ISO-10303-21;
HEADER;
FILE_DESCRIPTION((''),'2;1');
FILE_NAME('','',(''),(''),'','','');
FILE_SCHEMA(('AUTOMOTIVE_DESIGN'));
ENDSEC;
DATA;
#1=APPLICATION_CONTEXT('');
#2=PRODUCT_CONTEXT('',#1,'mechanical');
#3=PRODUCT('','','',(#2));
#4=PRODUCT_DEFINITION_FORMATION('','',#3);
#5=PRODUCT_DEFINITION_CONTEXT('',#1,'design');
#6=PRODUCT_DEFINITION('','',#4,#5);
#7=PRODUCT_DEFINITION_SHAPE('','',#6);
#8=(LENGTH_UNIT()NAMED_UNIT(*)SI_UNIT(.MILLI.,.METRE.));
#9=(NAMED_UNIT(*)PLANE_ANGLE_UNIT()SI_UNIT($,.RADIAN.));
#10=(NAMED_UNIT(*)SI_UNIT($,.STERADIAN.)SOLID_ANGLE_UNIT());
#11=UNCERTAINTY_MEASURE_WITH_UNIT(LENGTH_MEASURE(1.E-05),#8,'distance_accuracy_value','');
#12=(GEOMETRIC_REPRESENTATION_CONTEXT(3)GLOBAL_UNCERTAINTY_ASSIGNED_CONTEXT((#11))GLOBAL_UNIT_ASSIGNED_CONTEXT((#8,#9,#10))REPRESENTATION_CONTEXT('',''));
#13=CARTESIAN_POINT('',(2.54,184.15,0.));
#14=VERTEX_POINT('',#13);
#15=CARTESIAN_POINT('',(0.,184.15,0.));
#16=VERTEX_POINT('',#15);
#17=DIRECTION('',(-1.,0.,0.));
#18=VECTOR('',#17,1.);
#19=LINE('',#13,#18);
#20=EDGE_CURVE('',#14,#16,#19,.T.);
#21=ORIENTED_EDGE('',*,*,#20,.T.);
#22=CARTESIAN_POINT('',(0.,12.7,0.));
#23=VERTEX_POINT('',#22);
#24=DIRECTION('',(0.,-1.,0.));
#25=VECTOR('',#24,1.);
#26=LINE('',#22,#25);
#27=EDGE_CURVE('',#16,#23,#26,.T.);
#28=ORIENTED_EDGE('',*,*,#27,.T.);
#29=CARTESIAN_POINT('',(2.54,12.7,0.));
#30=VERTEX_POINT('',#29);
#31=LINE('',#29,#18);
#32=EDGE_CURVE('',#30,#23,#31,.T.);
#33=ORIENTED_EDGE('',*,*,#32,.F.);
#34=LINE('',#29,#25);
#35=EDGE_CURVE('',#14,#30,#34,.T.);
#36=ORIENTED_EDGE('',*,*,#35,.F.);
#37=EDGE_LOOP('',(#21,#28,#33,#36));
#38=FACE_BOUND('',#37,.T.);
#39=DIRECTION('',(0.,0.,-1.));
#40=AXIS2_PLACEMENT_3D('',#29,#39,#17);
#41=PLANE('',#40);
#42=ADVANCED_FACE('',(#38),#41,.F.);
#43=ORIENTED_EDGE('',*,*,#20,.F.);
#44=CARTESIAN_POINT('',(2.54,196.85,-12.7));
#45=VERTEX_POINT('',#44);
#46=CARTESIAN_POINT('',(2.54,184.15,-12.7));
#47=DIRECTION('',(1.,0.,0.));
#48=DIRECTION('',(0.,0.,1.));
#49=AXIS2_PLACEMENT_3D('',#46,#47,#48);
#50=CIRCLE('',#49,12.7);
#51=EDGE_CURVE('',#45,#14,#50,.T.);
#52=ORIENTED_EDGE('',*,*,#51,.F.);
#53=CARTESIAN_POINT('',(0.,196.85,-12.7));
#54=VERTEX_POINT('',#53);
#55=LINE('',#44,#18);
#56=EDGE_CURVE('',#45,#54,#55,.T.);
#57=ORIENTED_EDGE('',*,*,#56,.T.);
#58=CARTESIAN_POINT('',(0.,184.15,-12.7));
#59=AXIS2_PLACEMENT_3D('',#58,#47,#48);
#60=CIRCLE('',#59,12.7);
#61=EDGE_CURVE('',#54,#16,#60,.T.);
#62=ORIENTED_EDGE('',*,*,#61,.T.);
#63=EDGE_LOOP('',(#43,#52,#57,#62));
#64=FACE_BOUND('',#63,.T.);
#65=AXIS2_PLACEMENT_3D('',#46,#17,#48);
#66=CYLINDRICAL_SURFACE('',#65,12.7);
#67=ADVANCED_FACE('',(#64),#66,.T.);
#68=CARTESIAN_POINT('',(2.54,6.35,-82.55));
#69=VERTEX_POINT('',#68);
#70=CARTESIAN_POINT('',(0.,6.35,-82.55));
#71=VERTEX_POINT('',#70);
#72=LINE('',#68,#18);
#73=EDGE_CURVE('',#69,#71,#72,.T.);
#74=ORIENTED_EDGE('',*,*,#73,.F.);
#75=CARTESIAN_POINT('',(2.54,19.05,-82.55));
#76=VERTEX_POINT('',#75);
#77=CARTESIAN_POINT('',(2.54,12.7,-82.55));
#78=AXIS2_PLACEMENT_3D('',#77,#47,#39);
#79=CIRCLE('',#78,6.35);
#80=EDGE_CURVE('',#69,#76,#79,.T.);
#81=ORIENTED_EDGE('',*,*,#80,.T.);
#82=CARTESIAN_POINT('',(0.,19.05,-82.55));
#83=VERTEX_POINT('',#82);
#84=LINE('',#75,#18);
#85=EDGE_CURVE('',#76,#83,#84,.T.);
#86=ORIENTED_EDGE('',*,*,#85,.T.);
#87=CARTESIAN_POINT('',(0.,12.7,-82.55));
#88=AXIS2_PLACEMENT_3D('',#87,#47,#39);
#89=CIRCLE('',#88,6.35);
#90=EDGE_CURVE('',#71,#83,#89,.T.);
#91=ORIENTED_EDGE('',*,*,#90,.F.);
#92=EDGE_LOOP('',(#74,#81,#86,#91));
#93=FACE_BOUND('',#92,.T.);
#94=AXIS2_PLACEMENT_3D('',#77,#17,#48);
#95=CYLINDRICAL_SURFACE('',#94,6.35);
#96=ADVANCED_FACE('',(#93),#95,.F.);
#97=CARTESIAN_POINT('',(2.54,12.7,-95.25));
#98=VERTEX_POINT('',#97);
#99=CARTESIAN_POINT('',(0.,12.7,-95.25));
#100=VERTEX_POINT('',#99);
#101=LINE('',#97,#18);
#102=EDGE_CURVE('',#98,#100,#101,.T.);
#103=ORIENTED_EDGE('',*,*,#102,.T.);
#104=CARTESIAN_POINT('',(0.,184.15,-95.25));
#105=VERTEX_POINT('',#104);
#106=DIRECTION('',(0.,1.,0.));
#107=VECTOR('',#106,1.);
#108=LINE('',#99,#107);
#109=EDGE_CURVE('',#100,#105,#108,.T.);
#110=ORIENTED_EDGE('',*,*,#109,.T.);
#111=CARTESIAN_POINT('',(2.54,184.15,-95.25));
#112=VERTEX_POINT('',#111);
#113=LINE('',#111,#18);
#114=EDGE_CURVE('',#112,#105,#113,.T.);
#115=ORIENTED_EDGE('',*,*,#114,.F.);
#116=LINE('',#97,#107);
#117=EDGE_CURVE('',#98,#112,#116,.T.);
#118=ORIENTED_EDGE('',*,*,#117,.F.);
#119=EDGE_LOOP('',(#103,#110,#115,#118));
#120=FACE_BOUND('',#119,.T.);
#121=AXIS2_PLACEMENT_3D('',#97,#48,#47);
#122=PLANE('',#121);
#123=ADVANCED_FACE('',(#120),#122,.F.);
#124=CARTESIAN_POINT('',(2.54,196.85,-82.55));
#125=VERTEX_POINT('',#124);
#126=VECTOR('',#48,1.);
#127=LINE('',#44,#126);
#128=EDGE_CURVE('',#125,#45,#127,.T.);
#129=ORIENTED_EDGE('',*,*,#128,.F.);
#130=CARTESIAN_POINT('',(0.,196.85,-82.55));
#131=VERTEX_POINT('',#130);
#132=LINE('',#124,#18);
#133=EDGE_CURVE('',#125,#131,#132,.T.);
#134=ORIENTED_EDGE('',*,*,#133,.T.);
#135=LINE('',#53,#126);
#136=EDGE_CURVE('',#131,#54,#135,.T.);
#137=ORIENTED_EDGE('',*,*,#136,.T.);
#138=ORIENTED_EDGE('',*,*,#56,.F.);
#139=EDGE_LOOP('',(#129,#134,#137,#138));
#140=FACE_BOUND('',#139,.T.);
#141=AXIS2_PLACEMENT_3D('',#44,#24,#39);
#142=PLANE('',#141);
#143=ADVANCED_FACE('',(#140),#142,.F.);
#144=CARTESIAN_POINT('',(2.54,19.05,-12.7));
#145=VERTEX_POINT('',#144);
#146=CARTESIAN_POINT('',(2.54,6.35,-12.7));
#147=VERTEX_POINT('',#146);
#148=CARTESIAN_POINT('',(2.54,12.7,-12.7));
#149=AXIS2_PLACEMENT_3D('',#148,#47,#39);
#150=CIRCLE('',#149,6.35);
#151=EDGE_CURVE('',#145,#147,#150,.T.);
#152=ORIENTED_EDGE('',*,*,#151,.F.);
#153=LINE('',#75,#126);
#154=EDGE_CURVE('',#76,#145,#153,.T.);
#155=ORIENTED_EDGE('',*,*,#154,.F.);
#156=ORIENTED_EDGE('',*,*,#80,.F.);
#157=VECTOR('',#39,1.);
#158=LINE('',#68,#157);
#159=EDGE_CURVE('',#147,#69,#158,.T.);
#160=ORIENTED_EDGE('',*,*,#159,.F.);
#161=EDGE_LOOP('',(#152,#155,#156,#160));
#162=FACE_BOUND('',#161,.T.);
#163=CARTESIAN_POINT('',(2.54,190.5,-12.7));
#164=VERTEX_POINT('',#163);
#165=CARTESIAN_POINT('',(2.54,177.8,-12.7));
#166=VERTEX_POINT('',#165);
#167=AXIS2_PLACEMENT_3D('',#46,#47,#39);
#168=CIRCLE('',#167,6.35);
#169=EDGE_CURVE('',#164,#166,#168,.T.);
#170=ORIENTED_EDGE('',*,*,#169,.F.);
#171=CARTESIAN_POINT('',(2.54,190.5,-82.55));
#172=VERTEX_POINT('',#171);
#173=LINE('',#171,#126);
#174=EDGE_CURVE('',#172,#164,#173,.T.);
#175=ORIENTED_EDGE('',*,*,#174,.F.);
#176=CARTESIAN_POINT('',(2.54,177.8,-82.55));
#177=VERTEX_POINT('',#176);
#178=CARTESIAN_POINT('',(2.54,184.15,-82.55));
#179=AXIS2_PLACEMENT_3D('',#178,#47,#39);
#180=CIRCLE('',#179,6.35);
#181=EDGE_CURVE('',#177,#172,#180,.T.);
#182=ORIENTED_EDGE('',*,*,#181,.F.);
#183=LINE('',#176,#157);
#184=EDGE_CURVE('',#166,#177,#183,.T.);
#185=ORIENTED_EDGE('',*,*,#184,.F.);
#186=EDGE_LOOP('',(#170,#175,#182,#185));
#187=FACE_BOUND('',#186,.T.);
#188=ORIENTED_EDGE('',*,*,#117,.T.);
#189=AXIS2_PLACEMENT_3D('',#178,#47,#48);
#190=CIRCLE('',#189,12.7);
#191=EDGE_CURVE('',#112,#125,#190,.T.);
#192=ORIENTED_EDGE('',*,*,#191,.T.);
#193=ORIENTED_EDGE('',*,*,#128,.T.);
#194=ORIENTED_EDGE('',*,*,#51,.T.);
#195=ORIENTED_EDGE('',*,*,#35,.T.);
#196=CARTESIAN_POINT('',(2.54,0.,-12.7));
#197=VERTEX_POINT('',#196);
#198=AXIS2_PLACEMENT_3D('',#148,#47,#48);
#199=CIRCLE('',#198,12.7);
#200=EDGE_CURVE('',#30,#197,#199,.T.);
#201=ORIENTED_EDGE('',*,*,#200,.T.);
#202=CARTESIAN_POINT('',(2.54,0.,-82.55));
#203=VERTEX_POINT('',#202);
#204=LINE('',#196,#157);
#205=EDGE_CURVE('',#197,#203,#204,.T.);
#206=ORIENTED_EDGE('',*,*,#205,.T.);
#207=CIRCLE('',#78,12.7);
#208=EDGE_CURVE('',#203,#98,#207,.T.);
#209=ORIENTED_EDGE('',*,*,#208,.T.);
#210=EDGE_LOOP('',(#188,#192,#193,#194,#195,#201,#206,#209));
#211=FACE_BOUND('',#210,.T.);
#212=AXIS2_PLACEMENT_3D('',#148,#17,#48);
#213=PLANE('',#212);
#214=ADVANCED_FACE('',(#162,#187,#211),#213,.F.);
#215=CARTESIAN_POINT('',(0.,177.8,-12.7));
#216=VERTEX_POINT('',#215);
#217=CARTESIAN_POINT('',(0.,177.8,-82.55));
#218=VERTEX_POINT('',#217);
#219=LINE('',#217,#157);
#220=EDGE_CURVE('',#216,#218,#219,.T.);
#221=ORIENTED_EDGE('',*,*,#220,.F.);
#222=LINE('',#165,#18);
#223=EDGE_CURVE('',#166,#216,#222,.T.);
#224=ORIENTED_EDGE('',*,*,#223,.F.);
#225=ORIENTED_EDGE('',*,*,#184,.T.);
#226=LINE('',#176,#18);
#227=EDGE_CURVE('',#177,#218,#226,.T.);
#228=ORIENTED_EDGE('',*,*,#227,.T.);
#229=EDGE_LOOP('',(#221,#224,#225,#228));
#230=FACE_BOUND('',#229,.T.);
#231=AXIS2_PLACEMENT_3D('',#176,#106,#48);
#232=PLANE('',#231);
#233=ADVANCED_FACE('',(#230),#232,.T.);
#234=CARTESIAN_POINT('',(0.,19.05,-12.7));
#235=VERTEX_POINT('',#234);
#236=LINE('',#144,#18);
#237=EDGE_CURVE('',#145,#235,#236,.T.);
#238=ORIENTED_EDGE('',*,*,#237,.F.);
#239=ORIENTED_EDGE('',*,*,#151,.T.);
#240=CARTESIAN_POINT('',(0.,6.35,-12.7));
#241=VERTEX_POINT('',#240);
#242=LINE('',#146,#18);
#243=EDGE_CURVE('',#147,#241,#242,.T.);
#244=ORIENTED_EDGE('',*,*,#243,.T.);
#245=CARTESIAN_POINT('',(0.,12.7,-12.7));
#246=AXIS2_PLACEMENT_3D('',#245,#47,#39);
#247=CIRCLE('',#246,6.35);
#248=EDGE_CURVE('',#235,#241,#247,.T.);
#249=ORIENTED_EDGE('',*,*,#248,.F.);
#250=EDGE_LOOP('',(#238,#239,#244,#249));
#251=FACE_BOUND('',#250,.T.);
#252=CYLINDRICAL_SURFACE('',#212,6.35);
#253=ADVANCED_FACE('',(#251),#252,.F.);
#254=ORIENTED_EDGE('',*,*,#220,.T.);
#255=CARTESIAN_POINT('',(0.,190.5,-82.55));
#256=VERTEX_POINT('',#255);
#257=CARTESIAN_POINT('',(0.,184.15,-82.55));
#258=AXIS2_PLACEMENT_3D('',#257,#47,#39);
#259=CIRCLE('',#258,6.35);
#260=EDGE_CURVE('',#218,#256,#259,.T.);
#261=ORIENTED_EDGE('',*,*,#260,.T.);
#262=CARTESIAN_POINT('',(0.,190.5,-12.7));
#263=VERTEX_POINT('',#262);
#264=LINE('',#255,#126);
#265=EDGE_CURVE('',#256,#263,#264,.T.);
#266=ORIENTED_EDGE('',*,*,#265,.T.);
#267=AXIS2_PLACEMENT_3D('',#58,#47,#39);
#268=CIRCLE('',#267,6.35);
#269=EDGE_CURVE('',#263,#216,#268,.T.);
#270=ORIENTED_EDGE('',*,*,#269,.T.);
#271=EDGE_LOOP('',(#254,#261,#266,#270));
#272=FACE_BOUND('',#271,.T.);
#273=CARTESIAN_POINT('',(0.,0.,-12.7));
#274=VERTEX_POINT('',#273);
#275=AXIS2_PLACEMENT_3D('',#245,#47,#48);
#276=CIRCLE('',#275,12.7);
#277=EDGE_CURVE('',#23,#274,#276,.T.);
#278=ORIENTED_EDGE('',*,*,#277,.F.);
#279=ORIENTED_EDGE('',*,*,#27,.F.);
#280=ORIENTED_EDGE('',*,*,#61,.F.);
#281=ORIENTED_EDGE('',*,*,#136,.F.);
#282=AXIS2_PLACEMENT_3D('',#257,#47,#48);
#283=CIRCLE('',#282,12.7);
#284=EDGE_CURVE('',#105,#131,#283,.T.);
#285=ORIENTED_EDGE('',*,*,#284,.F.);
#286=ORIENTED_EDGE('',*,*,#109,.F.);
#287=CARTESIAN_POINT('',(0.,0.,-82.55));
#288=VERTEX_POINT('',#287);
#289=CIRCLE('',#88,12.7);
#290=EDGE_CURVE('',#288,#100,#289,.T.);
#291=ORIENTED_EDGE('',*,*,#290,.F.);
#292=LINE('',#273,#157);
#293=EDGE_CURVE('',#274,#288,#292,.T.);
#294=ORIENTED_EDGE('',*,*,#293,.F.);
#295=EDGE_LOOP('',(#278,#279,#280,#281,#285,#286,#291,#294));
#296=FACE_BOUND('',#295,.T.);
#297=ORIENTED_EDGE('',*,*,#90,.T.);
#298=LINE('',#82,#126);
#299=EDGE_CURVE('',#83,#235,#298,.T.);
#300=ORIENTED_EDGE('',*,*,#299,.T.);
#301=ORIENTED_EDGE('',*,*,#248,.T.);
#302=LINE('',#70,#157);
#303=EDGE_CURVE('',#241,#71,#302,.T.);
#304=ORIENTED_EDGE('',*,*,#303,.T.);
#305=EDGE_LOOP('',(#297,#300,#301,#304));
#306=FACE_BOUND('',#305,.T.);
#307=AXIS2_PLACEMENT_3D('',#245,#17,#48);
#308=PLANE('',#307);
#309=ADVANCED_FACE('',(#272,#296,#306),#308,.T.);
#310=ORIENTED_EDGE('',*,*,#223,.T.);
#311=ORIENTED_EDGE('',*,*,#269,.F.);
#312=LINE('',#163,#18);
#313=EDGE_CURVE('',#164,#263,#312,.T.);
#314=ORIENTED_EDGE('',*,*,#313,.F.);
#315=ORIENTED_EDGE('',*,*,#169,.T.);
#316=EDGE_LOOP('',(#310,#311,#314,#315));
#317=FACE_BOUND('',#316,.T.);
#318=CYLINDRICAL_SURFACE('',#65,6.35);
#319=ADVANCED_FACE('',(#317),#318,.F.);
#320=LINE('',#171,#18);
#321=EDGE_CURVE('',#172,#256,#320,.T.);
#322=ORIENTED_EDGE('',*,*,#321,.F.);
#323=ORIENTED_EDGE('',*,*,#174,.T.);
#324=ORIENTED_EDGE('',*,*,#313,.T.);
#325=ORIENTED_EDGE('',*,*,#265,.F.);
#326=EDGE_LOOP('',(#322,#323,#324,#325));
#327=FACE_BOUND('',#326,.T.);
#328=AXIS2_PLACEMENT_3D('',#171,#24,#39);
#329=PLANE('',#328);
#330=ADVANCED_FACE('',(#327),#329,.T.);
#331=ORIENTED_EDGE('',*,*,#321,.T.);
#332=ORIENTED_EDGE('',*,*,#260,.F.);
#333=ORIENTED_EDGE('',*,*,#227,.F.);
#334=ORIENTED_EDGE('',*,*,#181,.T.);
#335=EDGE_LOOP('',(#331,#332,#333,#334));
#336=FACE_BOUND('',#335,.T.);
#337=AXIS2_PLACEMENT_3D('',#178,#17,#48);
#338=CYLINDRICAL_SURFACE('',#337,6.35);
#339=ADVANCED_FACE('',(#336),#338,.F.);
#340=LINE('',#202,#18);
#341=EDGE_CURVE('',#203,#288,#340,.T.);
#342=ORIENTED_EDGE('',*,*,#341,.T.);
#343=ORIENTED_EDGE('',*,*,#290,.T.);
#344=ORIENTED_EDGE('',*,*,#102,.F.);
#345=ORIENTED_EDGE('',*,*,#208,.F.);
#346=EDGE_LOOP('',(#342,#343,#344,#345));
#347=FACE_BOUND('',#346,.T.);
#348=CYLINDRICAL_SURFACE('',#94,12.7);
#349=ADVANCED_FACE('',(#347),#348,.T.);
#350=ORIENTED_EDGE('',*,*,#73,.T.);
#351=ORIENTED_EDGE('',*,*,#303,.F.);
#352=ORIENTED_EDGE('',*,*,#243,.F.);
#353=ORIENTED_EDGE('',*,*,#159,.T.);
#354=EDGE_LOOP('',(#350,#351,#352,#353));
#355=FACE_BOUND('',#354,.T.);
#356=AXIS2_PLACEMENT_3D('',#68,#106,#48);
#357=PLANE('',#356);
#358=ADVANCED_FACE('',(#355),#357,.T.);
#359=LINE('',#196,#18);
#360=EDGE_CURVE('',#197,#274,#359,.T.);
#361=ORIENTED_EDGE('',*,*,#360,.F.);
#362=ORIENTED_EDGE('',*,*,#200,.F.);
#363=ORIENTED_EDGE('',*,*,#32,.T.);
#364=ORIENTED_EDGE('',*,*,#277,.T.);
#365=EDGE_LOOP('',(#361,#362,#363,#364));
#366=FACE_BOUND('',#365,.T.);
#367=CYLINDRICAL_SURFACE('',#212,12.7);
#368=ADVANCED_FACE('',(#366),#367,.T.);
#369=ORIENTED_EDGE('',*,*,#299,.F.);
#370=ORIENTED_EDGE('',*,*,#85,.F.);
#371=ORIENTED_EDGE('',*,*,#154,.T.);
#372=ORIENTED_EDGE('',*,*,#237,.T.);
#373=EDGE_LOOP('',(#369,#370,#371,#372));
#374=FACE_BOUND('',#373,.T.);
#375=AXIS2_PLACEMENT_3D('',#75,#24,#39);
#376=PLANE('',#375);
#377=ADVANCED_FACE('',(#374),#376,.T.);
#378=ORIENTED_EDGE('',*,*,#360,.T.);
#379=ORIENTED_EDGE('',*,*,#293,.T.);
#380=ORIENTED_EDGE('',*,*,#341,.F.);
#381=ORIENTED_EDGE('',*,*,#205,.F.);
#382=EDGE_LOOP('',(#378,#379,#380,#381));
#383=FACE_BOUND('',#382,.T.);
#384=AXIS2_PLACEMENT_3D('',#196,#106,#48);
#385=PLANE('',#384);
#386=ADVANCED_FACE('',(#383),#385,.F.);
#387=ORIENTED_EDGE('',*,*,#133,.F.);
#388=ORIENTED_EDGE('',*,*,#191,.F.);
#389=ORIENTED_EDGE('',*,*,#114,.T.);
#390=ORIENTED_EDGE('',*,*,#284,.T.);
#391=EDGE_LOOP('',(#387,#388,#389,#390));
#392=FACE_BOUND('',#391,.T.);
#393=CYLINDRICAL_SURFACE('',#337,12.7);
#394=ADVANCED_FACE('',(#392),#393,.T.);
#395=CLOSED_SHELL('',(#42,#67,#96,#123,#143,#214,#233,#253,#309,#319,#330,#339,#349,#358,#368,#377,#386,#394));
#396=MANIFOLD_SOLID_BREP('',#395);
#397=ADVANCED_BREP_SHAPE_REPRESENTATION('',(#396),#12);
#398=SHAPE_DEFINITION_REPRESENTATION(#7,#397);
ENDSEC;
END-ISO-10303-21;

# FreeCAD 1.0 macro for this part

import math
import FreeCAD as App
import Part
import Sketcher
Q = App.Units.Quantity

doc = App.newDocument("Part")
body = doc.addObject("PartDesign::Body", "Body")

# Sketch on YZ plane
sketch1 = body.newObject("Sketcher::SketchObject", "Sketch")
sketch1.AttachmentSupport = (doc.getObject("YZ_Plane"), [""])
sketch1.MapMode = "FlatFace"
sketch1.addGeometry([
    Part.LineSegment(App.Vector(0, -12.7, 0), App.Vector(0, -82.55, 0)),  # 0
    Part.ArcOfCircle(Part.Circle(App.Vector(12.7, -82.55, 0), App.Vector(0, 0, 1), 12.7), math.radians(180), math.radians(270)),  # 1
    Part.LineSegment(App.Vector(12.7, -95.25, 0), App.Vector(184.15, -95.25, 0)),  # 2
    Part.ArcOfCircle(Part.Circle(App.Vector(184.15, -82.55, 0), App.Vector(0, 0, 1), 12.7), math.radians(-90), math.radians(0)),  # 3
    Part.LineSegment(App.Vector(196.85, -82.55, 0), App.Vector(196.85, -12.7, 0)),  # 4
    Part.ArcOfCircle(Part.Circle(App.Vector(184.15, -12.7, 0), App.Vector(0, 0, 1), 12.7), math.radians(0), math.radians(90)),  # 5
    Part.LineSegment(App.Vector(184.15, 0, 0), App.Vector(12.7, 0, 0)),  # 6
    Part.ArcOfCircle(Part.Circle(App.Vector(12.7, -12.7, 0), App.Vector(0, 0, 1), 12.7), math.radians(90), math.radians(180)),  # 7
    Part.ArcOfCircle(Part.Circle(App.Vector(12.7, -82.55, 0), App.Vector(0, 0, 1), 6.35), math.radians(180), math.radians(360)),  # 8
    Part.LineSegment(App.Vector(6.35, -82.55, 0), App.Vector(6.35, -12.7, 0)),  # 9
    Part.ArcOfCircle(Part.Circle(App.Vector(12.7, -12.7, 0), App.Vector(0, 0, 1), 6.35), math.radians(0), math.radians(180)),  # 10
    Part.LineSegment(App.Vector(19.05, -12.7, 0), App.Vector(19.05, -82.55, 0)),  # 11
    Part.ArcOfCircle(Part.Circle(App.Vector(184.15, -82.55, 0), App.Vector(0, 0, 1), 6.35), math.radians(180), math.radians(360)),  # 12
    Part.LineSegment(App.Vector(177.8, -82.55, 0), App.Vector(177.8, -12.7, 0)),  # 13
    Part.ArcOfCircle(Part.Circle(App.Vector(184.15, -12.7, 0), App.Vector(0, 0, 1), 6.35), math.radians(0), math.radians(180)),  # 14
    Part.LineSegment(App.Vector(190.5, -12.7, 0), App.Vector(190.5, -82.55, 0)),  # 15
], False)
sketch1.addConstraint([
    Sketcher.Constraint("Tangent", 0, 2, 1, 1),
    Sketcher.Constraint("Tangent", 1, 2, 2, 1),
    Sketcher.Constraint("Tangent", 2, 2, 3, 1),
    Sketcher.Constraint("Tangent", 3, 2, 4, 1),
    Sketcher.Constraint("Tangent", 4, 2, 5, 1),
    Sketcher.Constraint("Tangent", 5, 2, 6, 1),
    Sketcher.Constraint("Tangent", 6, 2, 7, 1),
    Sketcher.Constraint("Tangent", 7, 2, 0, 1),
    Sketcher.Constraint("Tangent", 8, 1, 9, 1),
    Sketcher.Constraint("Tangent", 9, 2, 10, 2),
    Sketcher.Constraint("Tangent", 10, 1, 11, 1),
    Sketcher.Constraint("Tangent", 11, 2, 8, 2),
    Sketcher.Constraint("Tangent", 12, 1, 13, 1),
    Sketcher.Constraint("Tangent", 13, 2, 14, 2),
    Sketcher.Constraint("Tangent", 14, 1, 15, 1),
    Sketcher.Constraint("Tangent", 15, 2, 12, 2),
    Sketcher.Constraint("Vertical", 0),
    Sketcher.Constraint("Horizontal", 2),
    Sketcher.Constraint("Vertical", 4),
    Sketcher.Constraint("Horizontal", 6),
    Sketcher.Constraint("Vertical", 9),
    Sketcher.Constraint("Vertical", 11),
    Sketcher.Constraint("Vertical", 13),
    Sketcher.Constraint("Vertical", 15),
    Sketcher.Constraint("Coincident", 8, 3, 1, 3),
    Sketcher.Constraint("Coincident", 10, 3, 7, 3),
    Sketcher.Constraint("Coincident", 12, 3, 3, 3),
    Sketcher.Constraint("Coincident", 14, 3, 5, 3),
    Sketcher.Constraint("Equal", 1, 3),
    Sketcher.Constraint("Equal", 10, 12),
    Sketcher.Constraint("PointOnObject", 0, 2, -2),
    Sketcher.Constraint("PointOnObject", 5, 2, -1),
    Sketcher.Constraint("Radius", 1, Q("0.5 in")),
    Sketcher.Constraint("Radius", 8, Q("0.25 in")),
    Sketcher.Constraint("DistanceX", -1, 1, 12, 1, Q("7 in")),
    Sketcher.Constraint("DistanceY", 0, 2, 0, 1, Q("2.75 in")),
])
pad1 = body.newObject("PartDesign::Pad", "Pad")
pad1.Profile = sketch1
pad1.Length = Q("0.1 in")

doc.recompute()
